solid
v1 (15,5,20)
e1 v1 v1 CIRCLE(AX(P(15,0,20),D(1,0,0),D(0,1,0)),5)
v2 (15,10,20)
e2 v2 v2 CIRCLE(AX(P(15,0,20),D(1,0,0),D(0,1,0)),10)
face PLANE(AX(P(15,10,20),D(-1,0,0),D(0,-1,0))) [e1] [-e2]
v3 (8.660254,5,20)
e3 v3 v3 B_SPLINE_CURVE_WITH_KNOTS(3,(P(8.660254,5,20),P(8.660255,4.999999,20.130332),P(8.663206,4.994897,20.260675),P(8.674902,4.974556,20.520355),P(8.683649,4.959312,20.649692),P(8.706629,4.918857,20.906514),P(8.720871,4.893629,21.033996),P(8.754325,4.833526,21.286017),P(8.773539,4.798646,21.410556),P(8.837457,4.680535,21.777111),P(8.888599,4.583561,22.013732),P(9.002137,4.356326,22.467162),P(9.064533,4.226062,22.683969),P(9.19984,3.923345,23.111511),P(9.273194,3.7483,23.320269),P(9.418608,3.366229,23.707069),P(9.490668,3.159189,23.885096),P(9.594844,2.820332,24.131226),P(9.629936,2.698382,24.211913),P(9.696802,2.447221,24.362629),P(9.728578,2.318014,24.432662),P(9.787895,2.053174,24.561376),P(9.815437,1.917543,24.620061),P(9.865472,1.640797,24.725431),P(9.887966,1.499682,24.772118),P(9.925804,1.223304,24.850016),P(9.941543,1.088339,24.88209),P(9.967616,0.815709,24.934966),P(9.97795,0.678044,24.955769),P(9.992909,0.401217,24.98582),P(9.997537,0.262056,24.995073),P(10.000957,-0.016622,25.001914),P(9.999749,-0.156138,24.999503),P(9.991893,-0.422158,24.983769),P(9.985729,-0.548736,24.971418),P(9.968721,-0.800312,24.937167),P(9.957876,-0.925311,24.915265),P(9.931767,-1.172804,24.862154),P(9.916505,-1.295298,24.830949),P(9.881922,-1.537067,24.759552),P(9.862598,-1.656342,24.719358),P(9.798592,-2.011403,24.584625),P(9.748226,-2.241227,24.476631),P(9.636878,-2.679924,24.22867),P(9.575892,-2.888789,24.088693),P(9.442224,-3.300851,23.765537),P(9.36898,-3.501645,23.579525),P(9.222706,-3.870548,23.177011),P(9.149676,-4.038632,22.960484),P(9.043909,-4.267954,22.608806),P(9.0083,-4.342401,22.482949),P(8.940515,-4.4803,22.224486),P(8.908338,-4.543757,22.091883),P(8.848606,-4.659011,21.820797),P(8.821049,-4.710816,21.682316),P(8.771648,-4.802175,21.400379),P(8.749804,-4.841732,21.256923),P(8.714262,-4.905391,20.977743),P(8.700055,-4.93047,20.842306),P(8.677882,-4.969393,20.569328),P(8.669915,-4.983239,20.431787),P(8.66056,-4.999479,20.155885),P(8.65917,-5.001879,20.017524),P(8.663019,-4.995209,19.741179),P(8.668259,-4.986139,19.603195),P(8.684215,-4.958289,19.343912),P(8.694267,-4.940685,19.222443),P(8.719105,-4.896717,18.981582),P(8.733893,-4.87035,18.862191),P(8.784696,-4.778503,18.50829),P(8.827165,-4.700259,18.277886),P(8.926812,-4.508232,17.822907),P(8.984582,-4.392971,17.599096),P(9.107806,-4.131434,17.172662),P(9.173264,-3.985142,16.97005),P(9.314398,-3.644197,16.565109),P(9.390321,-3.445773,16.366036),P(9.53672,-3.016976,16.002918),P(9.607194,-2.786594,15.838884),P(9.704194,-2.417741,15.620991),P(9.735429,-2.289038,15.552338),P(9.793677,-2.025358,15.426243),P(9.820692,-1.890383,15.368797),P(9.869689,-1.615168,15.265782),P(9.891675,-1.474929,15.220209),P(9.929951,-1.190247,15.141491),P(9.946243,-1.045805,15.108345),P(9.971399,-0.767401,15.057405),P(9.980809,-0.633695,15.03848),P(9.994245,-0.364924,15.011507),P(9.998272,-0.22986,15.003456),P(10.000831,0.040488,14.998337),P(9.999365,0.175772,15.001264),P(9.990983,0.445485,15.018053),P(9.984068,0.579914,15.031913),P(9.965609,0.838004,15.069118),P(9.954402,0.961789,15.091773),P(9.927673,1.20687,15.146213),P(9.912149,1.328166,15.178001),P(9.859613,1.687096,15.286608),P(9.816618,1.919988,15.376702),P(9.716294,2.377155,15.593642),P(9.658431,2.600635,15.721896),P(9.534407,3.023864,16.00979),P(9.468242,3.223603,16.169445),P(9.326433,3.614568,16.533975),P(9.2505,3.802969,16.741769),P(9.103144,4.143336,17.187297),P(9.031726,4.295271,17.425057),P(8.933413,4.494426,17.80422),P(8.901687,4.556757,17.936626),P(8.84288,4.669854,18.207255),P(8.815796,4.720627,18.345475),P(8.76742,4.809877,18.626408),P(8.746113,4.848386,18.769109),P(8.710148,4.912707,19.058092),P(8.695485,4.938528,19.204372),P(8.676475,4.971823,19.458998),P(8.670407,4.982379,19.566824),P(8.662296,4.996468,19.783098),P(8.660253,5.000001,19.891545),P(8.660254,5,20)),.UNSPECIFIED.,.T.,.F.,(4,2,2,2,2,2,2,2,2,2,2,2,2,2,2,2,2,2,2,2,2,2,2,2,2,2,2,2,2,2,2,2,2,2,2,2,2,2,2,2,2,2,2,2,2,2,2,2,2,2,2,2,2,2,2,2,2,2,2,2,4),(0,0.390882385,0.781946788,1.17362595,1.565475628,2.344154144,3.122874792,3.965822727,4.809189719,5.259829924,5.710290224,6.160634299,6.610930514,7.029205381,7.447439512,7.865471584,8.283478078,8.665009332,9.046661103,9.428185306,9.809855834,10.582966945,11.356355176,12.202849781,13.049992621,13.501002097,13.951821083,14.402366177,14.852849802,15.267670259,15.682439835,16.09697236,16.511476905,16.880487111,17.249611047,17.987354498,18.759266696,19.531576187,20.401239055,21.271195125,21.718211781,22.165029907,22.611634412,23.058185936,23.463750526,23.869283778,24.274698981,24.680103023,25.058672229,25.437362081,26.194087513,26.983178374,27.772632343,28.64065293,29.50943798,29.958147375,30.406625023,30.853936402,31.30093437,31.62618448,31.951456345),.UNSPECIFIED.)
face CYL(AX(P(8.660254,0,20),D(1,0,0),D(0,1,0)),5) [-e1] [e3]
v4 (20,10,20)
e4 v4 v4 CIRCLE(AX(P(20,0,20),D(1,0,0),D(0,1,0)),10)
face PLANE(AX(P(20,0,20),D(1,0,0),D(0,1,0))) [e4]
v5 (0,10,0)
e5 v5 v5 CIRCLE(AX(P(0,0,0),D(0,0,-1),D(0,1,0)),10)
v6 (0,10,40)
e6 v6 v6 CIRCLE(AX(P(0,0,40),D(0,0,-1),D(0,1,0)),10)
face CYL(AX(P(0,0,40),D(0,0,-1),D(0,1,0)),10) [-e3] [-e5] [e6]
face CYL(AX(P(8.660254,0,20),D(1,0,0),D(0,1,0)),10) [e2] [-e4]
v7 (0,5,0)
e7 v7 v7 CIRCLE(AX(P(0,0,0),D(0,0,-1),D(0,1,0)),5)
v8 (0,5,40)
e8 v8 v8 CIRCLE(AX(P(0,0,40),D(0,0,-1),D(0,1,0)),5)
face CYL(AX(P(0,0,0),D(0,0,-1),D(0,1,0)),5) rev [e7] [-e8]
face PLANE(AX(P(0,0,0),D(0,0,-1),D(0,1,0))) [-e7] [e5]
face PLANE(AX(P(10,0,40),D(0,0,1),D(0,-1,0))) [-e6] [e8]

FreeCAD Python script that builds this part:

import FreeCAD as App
import Part
import Sketcher

V = App.Vector


def add_polygon(sketch, points):
    """Adds a closed chain of lines whose ends are joined by coincident constraints."""
    first, n = sketch.GeometryCount, len(points)
    for a, b in zip(points, points[1:] + points[:1]):
        sketch.addGeometry(Part.LineSegment(App.Vector(*a, 0), App.Vector(*b, 0)), False)
    for i in range(n):
        sketch.addConstraint(Sketcher.Constraint("Coincident", first + i, 2, first + (i + 1) % n, 1))

doc = App.newDocument("Part")
params = doc.addObject("Spreadsheet::Sheet", "Params")
for row, (alias, value) in enumerate([
    ("sketch1_width", "10 mm"),
    ("sketch1_height", "40 mm"),
    ("revolution_angle", "360 deg"),
    ("sketch2_width", "5 mm"),
    ("revolution2_angle", "360 deg"),
    ("sketch3_diameter", "10 mm"),
    ("hole_diameter", "10 mm"),
    ("hole_depth", "40 mm"),
], start=1):
    params.set(f"A{row}", alias)
    params.set(f"B{row}", "=" + value)
    params.setAlias(f"B{row}", alias)

body = doc.addObject("PartDesign::Body", "Body")

sketch1 = body.newObject("Sketcher::SketchObject", "Sketch")
sketch1.AttachmentSupport = (doc.getObject("XZ_Plane"), [""])
sketch1.MapMode = "FlatFace"
add_polygon(sketch1, [(0, 40), (0, 0), (10, 0), (10, 40)])
sketch1.addConstraint([
    Sketcher.Constraint("Vertical", 0),
    Sketcher.Constraint("Horizontal", 1),
    Sketcher.Constraint("Vertical", 2),
    Sketcher.Constraint("Horizontal", 3),
    Sketcher.Constraint("Coincident", 0, 2, -1, 1),
    Sketcher.Constraint("DistanceX", 1, 1, 1, 2, 10.0),
    Sketcher.Constraint("DistanceY", 0, 2, 0, 1, 40.0),
])
sketch1.setExpression("Constraints[9]", "Params.sketch1_width")
sketch1.setExpression("Constraints[10]", "Params.sketch1_height")
revolution = body.newObject("PartDesign::Revolution", "Revolution")
revolution.Profile = sketch1
revolution.ReferenceAxis = (sketch1, ["V_Axis"])
revolution.setExpression("Angle", "Params.revolution_angle")

sketch2 = body.newObject("Sketcher::SketchObject", "Sketch001")
sketch2.AttachmentSupport = (doc.getObject("XY_Plane"), [""])
sketch2.MapMode = "FlatFace"
sketch2.AttachmentOffset = App.Placement(V(0, 0, 20), App.Rotation())
add_polygon(sketch2, [(20, 0), (20, 10), (15, 10), (15, 5), (9, 5), (9, 0)])
sketch2.addConstraint([
    Sketcher.Constraint("Vertical", 0),
    Sketcher.Constraint("Horizontal", 1),
    Sketcher.Constraint("Vertical", 2),
    Sketcher.Constraint("Horizontal", 3),
    Sketcher.Constraint("Vertical", 4),
    Sketcher.Constraint("Horizontal", 5),
    Sketcher.Constraint("PointOnObject", 4, 2, -1),
    Sketcher.Constraint("Equal", 1, 2),
    Sketcher.Constraint("Equal", 2, 4),
    Sketcher.Constraint("DistanceX", 1, 2, 1, 1, 5.0),
    Sketcher.Constraint("DistanceX", -1, 1, 0, 2, 20.0),
    Sketcher.Constraint("DistanceX", 3, 2, 3, 1, 6.339746),
])
sketch2.setExpression("Constraints[15]", "Params.sketch2_width")
revolution2 = body.newObject("PartDesign::Revolution", "Revolution001")
revolution2.Profile = sketch2
revolution2.ReferenceAxis = (sketch2, ["H_Axis"])
revolution2.setExpression("Angle", "Params.revolution2_angle")

sketch3 = body.newObject("Sketcher::SketchObject", "Sketch002")
sketch3.AttachmentSupport = (doc.getObject("XY_Plane"), [""])
sketch3.MapMode = "FlatFace"
sketch3.addGeometry(Part.Circle(V(0, 0, 0), V(0, 0, 1), 5), False)
sketch3.addConstraint([
    Sketcher.Constraint("Coincident", 0, 3, -1, 1),
    Sketcher.Constraint("Diameter", 0, 10.0),
])
sketch3.setExpression("Constraints[1]", "Params.sketch3_diameter")
doc.recompute()
hole = body.newObject("PartDesign::Hole", "Hole")
hole.Profile = sketch3
hole.ThreadType = "None"
hole.setExpression("Diameter", "Params.hole_diameter")
hole.DepthType = "Dimension"
hole.setExpression("Depth", "Params.hole_depth")
hole.DrillPoint = "Flat"
hole.Reversed = True

doc.recompute()
